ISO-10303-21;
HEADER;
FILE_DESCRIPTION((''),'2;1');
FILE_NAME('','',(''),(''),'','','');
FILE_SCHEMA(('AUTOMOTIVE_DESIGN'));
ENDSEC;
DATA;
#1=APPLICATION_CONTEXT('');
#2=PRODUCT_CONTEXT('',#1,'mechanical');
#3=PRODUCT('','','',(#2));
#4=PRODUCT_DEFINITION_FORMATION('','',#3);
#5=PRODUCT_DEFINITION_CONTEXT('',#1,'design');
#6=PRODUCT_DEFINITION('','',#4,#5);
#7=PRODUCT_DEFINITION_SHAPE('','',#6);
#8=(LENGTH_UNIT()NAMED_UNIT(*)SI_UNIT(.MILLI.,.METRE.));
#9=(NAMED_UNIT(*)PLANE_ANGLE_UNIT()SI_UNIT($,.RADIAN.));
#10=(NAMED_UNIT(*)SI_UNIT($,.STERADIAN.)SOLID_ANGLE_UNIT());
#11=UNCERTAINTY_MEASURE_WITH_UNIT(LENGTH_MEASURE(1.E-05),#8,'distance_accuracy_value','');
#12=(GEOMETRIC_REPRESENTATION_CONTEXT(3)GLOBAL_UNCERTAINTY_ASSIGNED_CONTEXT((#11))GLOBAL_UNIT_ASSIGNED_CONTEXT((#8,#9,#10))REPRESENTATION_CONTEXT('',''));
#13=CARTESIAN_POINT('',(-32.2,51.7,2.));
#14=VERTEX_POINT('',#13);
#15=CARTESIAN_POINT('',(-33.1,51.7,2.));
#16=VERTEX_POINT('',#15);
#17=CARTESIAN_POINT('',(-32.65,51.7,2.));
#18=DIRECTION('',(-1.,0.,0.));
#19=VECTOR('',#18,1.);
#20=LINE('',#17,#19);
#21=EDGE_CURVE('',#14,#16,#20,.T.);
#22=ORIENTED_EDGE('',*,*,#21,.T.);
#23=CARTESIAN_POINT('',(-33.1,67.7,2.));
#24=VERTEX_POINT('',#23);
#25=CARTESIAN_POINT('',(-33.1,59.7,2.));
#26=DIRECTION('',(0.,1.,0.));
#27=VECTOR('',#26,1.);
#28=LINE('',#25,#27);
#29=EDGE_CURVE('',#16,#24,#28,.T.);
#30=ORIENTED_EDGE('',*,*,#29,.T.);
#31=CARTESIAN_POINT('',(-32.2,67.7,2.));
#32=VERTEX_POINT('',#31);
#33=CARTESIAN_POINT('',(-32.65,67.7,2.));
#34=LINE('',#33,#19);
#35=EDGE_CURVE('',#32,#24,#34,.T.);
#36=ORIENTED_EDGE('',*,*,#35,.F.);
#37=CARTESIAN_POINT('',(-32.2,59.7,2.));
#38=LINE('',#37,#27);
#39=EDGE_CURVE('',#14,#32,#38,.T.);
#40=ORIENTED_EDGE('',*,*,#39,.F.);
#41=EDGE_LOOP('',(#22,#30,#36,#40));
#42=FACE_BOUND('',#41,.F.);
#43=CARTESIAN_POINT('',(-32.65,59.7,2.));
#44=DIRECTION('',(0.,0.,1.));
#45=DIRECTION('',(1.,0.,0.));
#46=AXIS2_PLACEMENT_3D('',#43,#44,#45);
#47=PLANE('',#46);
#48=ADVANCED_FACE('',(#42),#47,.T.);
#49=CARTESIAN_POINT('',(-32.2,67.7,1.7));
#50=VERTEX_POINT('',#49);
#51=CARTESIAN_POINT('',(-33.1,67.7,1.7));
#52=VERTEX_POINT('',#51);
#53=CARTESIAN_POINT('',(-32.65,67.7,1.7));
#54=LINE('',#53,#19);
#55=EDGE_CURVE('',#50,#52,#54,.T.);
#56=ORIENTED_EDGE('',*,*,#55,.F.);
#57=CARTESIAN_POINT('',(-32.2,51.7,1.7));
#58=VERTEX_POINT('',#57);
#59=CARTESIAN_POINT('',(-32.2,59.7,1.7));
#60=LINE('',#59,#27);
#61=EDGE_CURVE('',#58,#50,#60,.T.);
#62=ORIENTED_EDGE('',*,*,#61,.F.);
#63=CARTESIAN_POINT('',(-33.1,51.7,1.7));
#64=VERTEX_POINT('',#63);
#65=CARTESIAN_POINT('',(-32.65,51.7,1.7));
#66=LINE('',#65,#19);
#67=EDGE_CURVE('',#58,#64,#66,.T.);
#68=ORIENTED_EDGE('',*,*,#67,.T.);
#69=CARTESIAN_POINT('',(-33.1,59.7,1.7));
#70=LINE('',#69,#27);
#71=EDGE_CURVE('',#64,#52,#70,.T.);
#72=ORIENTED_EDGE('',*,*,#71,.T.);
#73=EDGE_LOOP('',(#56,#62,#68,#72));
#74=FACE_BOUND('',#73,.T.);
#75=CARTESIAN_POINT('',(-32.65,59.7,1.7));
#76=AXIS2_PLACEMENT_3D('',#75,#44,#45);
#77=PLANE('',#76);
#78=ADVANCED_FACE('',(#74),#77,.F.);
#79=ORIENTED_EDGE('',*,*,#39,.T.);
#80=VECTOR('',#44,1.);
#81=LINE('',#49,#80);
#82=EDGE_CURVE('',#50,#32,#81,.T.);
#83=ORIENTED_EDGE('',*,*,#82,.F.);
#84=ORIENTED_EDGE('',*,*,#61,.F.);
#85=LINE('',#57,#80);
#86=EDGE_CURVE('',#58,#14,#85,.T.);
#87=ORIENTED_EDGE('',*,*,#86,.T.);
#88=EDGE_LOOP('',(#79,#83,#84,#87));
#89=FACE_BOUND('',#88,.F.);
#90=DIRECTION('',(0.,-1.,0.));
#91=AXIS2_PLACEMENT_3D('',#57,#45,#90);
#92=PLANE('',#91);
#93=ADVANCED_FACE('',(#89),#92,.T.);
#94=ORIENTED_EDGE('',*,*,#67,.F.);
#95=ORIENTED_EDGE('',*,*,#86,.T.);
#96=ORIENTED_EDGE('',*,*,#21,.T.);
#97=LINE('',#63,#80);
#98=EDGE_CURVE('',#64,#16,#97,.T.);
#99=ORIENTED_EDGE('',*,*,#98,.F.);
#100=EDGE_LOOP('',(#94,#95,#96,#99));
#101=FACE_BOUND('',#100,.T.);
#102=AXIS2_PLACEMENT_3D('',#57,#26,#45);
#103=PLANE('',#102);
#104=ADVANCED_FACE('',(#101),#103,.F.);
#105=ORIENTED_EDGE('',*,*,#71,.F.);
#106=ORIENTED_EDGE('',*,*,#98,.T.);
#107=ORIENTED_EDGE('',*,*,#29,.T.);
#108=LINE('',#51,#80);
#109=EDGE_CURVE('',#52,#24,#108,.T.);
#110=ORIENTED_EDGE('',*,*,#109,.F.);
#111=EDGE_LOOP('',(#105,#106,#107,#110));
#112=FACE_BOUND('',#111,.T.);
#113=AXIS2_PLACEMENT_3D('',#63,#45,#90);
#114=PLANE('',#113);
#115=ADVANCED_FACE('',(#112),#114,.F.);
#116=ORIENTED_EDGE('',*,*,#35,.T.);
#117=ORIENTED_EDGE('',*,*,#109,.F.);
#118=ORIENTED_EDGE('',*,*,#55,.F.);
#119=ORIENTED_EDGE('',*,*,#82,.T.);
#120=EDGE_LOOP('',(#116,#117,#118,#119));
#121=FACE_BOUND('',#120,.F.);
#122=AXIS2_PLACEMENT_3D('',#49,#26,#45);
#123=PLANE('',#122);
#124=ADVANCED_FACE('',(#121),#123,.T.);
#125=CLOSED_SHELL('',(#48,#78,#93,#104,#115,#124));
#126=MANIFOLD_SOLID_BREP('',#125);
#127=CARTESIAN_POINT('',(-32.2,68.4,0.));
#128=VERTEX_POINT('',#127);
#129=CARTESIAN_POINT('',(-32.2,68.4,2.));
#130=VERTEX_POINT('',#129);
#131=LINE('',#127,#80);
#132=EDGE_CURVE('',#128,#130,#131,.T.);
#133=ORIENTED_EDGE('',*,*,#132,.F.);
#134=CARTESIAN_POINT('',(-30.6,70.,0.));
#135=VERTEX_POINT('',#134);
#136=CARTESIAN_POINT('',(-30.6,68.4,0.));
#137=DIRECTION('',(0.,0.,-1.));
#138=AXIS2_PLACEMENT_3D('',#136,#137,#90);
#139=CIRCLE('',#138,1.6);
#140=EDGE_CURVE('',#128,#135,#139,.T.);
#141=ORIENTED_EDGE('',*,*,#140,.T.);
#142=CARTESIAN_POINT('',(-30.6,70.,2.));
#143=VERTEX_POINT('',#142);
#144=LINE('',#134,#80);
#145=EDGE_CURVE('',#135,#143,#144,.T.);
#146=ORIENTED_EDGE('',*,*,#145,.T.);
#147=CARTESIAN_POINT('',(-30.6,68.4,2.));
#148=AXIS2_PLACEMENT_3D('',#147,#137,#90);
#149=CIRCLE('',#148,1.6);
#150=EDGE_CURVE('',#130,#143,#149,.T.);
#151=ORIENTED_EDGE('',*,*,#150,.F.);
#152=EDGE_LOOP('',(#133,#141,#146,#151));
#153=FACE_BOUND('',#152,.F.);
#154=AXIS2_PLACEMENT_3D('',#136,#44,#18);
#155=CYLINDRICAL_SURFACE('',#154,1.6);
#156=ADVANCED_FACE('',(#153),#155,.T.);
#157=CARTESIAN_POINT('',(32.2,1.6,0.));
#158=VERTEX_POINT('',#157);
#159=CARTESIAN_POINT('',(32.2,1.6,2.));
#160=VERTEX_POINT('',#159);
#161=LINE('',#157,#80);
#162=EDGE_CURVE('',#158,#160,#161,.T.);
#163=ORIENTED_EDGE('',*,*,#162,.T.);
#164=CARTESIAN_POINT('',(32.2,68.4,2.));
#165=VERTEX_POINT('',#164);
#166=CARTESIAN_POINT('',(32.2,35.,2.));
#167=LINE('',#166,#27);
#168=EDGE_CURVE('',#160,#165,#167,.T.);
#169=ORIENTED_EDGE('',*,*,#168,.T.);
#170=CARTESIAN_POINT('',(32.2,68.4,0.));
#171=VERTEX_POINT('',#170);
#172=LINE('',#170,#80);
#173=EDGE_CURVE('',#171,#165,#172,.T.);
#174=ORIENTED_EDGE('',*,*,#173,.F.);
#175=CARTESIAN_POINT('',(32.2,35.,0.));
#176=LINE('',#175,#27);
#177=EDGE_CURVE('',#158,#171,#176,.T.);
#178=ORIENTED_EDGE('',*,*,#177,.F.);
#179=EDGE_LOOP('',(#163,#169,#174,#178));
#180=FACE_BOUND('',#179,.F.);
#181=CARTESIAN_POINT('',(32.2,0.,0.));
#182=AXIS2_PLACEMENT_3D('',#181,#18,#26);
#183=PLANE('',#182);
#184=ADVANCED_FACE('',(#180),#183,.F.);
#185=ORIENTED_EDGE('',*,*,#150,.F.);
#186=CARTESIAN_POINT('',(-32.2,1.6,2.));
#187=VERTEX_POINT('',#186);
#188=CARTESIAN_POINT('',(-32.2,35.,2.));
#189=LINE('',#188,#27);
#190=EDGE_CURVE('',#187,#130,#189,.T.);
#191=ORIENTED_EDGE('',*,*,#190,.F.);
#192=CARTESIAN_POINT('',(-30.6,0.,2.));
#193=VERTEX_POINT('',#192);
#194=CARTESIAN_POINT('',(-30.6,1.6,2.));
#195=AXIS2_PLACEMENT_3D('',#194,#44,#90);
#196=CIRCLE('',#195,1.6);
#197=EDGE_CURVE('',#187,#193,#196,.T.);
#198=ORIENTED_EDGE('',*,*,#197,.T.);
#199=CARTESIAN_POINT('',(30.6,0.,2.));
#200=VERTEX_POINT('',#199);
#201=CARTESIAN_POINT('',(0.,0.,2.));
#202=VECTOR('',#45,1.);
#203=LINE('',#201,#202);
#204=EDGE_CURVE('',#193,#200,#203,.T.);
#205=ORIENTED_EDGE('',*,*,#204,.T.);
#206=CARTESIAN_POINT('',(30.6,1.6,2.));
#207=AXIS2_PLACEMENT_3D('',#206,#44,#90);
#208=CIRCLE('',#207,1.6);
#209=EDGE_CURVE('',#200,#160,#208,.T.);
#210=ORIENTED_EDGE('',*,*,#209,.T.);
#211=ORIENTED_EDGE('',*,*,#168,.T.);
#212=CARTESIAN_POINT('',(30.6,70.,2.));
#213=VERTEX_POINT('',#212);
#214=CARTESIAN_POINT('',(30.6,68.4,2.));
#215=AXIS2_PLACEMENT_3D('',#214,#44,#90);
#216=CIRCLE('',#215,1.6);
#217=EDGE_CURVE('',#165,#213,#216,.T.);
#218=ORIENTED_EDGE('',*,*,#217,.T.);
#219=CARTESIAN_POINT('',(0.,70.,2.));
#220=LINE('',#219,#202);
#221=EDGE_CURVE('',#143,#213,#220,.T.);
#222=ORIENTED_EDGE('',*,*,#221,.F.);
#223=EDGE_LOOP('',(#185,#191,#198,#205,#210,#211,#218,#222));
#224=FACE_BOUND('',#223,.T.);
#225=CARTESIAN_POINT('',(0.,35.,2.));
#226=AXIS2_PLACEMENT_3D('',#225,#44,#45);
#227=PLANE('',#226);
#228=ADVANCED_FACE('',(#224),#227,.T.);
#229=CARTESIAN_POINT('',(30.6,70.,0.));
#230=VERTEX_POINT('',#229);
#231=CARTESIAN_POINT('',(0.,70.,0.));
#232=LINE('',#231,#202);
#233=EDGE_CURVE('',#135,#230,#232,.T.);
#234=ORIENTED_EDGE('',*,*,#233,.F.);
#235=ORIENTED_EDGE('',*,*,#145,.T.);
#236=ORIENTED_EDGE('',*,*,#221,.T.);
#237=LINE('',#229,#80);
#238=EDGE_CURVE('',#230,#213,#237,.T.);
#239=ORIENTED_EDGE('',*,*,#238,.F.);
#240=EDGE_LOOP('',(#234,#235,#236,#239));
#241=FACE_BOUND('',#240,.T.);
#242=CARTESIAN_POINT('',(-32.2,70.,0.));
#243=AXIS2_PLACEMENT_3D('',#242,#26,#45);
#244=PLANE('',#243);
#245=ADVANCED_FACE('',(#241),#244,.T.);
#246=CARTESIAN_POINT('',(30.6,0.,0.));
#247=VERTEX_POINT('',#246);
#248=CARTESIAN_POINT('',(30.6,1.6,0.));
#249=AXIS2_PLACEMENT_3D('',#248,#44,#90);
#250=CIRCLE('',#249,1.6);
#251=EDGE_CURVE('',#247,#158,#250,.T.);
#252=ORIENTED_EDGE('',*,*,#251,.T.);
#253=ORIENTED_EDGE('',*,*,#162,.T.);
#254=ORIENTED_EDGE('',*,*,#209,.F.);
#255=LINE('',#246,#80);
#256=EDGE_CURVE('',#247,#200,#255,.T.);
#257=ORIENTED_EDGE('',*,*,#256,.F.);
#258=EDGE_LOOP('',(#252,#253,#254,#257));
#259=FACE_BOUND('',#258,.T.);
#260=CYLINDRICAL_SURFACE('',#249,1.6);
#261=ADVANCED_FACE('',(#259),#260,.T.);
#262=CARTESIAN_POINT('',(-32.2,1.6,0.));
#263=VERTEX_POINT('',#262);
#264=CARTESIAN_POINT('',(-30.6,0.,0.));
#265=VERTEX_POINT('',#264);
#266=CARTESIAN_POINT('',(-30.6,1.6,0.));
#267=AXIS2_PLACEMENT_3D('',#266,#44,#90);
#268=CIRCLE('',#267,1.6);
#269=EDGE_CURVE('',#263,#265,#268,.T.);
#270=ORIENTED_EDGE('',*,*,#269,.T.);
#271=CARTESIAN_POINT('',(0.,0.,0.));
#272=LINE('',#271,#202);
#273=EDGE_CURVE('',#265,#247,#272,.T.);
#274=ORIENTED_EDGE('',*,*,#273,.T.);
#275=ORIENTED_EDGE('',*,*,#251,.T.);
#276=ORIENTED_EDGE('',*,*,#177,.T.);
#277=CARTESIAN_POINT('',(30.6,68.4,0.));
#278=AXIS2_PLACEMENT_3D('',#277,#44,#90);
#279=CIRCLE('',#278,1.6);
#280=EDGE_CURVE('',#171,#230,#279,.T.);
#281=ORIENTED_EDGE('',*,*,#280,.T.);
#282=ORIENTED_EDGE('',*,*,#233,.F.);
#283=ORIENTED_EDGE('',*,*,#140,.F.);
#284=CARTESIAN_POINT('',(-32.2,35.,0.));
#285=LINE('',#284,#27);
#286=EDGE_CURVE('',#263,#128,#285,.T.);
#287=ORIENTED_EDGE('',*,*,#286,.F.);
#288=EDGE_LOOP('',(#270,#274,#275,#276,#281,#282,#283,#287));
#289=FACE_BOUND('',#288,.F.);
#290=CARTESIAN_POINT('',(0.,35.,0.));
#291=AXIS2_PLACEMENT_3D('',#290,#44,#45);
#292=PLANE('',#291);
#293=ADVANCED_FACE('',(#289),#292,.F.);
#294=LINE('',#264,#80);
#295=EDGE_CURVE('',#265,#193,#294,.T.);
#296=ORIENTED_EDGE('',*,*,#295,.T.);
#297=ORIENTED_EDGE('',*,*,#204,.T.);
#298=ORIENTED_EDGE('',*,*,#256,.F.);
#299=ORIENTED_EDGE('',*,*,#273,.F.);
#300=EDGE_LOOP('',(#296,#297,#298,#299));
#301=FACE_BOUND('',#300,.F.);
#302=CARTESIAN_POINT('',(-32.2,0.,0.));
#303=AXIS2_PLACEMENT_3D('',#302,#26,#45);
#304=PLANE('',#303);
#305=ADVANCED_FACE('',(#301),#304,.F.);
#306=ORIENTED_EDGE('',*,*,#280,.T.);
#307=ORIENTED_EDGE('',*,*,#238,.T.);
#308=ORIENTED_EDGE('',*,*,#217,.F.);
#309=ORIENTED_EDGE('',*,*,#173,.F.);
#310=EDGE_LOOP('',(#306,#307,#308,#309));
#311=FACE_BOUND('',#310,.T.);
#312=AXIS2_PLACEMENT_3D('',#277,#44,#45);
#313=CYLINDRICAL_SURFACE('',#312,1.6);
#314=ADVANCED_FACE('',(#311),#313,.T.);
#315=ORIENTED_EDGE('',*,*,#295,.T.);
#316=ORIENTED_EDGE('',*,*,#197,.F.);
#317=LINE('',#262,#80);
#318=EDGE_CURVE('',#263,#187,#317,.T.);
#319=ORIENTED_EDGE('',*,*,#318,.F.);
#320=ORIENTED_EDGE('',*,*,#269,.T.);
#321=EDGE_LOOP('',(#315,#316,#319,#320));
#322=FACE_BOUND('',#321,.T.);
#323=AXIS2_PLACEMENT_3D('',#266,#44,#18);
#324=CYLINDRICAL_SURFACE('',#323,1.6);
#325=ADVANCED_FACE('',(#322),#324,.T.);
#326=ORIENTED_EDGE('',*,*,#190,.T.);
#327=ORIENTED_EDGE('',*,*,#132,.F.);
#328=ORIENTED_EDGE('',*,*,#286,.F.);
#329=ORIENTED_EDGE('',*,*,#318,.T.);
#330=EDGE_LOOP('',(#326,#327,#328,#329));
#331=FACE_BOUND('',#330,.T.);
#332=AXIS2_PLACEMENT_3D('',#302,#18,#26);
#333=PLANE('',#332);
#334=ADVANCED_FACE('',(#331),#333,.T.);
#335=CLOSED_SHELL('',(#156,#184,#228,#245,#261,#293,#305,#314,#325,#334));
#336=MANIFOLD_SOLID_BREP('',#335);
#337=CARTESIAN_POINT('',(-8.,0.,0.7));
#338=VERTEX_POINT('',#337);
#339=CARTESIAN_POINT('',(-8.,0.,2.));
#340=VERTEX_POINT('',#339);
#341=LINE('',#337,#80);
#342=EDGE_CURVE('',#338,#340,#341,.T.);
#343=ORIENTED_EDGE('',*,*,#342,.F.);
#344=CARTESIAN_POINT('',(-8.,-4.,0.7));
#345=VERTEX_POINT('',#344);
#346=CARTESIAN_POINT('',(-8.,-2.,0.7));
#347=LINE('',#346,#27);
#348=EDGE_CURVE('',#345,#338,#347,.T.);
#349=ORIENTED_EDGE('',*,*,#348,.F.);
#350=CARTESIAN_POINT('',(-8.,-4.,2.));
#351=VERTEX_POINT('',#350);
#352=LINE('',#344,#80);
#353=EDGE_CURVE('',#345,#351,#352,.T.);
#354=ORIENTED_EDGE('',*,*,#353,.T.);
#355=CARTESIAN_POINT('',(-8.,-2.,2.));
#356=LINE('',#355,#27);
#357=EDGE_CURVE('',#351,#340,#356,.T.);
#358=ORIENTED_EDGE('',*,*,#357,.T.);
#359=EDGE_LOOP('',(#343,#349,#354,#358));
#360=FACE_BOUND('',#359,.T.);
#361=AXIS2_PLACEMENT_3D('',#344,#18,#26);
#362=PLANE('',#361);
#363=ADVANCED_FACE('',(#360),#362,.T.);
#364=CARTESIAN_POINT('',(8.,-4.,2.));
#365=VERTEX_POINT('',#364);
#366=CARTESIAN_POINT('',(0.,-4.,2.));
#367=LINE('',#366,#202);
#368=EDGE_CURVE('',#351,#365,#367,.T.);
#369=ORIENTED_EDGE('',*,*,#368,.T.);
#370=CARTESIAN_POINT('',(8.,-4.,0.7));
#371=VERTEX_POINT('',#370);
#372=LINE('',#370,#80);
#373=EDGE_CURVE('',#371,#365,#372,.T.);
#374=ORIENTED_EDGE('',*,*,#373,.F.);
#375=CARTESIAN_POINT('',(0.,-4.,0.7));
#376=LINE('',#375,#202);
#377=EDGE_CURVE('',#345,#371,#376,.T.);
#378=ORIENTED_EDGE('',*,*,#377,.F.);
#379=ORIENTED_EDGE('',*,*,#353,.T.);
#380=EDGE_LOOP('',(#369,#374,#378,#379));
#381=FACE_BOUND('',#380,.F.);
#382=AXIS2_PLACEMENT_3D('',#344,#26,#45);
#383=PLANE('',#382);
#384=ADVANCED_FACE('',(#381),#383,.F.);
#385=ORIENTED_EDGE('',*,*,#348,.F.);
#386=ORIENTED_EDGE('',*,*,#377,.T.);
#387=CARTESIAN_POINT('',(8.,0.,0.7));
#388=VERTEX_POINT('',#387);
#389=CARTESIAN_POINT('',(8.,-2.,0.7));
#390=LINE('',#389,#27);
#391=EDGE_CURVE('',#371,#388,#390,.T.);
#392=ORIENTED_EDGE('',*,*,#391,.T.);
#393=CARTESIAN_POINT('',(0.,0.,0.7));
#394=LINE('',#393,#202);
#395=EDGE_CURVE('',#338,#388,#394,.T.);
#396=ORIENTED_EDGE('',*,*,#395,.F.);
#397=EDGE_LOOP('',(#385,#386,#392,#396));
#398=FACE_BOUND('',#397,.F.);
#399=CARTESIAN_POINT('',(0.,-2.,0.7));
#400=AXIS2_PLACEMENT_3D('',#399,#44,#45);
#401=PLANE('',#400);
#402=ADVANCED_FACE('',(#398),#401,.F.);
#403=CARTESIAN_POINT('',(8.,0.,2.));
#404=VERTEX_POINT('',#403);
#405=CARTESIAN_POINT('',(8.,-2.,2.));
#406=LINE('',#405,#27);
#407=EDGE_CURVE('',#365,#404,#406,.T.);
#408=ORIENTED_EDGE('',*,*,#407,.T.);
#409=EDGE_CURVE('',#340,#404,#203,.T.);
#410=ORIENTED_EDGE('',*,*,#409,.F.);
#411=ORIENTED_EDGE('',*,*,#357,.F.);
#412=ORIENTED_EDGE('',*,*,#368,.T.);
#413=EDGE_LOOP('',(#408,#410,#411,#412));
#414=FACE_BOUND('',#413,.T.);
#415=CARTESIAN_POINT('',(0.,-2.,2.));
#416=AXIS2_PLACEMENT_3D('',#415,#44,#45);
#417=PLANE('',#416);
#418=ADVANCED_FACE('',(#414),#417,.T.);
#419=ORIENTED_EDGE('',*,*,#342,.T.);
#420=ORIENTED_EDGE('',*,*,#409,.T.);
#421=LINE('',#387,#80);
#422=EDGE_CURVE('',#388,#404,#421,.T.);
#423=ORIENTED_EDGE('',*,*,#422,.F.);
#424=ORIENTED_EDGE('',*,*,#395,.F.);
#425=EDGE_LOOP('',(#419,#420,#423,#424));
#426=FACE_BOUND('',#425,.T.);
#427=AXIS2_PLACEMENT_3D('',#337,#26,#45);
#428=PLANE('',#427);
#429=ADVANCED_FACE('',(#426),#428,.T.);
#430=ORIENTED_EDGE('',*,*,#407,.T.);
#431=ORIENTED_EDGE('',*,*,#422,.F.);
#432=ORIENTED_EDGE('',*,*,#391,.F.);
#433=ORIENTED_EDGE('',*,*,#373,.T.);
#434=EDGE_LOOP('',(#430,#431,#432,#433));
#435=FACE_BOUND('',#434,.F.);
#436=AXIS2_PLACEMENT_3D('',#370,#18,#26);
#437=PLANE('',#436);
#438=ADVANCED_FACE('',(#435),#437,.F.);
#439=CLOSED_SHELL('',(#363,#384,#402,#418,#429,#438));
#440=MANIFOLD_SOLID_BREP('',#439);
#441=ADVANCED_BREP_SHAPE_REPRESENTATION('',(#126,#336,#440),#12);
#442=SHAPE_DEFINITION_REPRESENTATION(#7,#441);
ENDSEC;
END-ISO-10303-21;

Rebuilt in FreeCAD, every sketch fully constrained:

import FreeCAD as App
import Part
import Sketcher
from FreeCAD import Vector


def edges_at(feature, points):
    """Names of the edges that pass closest to the given points."""
    edges = feature.Shape.Edges
    near = lambda p: min(range(len(edges)), key=lambda i: edges[i].distToShape(Part.Vertex(*p))[0])
    return sorted({f"Edge{near(p) + 1}" for p in points})


def add_polygon(sketch, points):
    """Adds a closed chain of lines whose ends are joined by coincident constraints."""
    first, n = sketch.GeometryCount, len(points)
    for a, b in zip(points, points[1:] + points[:1]):
        sketch.addGeometry(Part.LineSegment(App.Vector(*a, 0), App.Vector(*b, 0)), False)
    for i in range(n):
        sketch.addConstraint(Sketcher.Constraint("Coincident", first + i, 2, first + (i + 1) % n, 1))

doc = App.newDocument("Part")
body = doc.addObject("PartDesign::Body", "Body")

sketch1 = body.newObject("Sketcher::SketchObject", "Sketch")
sketch1.AttachmentSupport = (doc.getObject("XY_Plane"), [""])
sketch1.MapMode = "FlatFace"
sketch1.AttachmentOffset = App.Placement(Vector(0, 0, 0.7), App.Rotation())
add_polygon(sketch1, [(-8, 0), (-8, -4), (8, -4), (8, 0)])
sketch1.addConstraint([
    Sketcher.Constraint("Vertical", 0),
    Sketcher.Constraint("Horizontal", 1),
    Sketcher.Constraint("Vertical", 2),
    Sketcher.Constraint("Horizontal", 3),
    Sketcher.Constraint("Symmetric", 2, 2, 3, 2, -1, 1),
    Sketcher.Constraint("DistanceX", 1, 1, 1, 2, 16.0),
    Sketcher.Constraint("DistanceY", 0, 2, 0, 1, 4.0),
])
pad1 = body.newObject("PartDesign::Pad", "Pad")
pad1.Profile = sketch1
pad1.Length = 1.3
body2 = doc.addObject("PartDesign::Body", "Body001")

sketch2 = body2.newObject("Sketcher::SketchObject", "Sketch001")
sketch2.AttachmentSupport = (doc.getObject("XY_Plane001"), [""])
sketch2.MapMode = "FlatFace"
add_polygon(sketch2, [(-32.2, 70), (-32.2, 0), (32.2, 0), (32.2, 70)])
sketch2.addConstraint([
    Sketcher.Constraint("Vertical", 0),
    Sketcher.Constraint("Horizontal", 1),
    Sketcher.Constraint("Vertical", 2),
    Sketcher.Constraint("Horizontal", 3),
    Sketcher.Constraint("Symmetric", 0, 2, 1, 2, -1, 1),
    Sketcher.Constraint("DistanceY", 0, 2, 0, 1, 70.0),
    Sketcher.Constraint("DistanceX", 1, 1, 1, 2, 64.4),
])
pad2 = body2.newObject("PartDesign::Pad", "Pad001")
pad2.Profile = sketch2
pad2.Length = 2
doc.recompute()

fillet = body2.newObject("PartDesign::Fillet", "Fillet")
fillet.Base = (pad2, edges_at(pad2, [
    (-32.2, 0, 1),
    (-32.2, 70, 1),
    (32.2, 0, 1),
    (32.2, 70, 1),
]))
fillet.Radius = 1.6
body3 = doc.addObject("PartDesign::Body", "Body002")

sketch3 = body3.newObject("Sketcher::SketchObject", "Sketch002")
sketch3.AttachmentSupport = (doc.getObject("XY_Plane002"), [""])
sketch3.MapMode = "FlatFace"
sketch3.AttachmentOffset = App.Placement(Vector(0, 0, 1.7), App.Rotation())
add_polygon(sketch3, [(32.2, 67.7), (32.2, 51.7), (33.1, 51.7), (33.1, 67.7)])
sketch3.addConstraint([
    Sketcher.Constraint("Vertical", 0),
    Sketcher.Constraint("Horizontal", 1),
    Sketcher.Constraint("Vertical", 2),
    Sketcher.Constraint("Horizontal", 3),
    Sketcher.Constraint("DistanceY", 0, 2, 0, 1, 16.0),
    Sketcher.Constraint("DistanceX", 1, 1, 1, 2, 0.9),
    Sketcher.Constraint("DistanceX", -1, 1, 0, 2, 32.2),
    Sketcher.Constraint("DistanceY", -1, 1, 0, 2, 51.7),
])
pad3 = body3.newObject("PartDesign::Pad", "Pad002")
pad3.Profile = sketch3
pad3.Length = 0.3
body4 = doc.addObject("PartDesign::Body", "Body003")
doc.recompute()

mirroring = doc.addObject("Part::Mirroring", "Mirroring")
mirroring.Source = body3
mirroring.Base = Vector(0, 0, 0)
mirroring.Normal = Vector(1, 0, 0)
body4.BaseFeature = mirroring
doc.recompute()
body3.Visibility = False
mirroring.Visibility = False

doc.recompute()
